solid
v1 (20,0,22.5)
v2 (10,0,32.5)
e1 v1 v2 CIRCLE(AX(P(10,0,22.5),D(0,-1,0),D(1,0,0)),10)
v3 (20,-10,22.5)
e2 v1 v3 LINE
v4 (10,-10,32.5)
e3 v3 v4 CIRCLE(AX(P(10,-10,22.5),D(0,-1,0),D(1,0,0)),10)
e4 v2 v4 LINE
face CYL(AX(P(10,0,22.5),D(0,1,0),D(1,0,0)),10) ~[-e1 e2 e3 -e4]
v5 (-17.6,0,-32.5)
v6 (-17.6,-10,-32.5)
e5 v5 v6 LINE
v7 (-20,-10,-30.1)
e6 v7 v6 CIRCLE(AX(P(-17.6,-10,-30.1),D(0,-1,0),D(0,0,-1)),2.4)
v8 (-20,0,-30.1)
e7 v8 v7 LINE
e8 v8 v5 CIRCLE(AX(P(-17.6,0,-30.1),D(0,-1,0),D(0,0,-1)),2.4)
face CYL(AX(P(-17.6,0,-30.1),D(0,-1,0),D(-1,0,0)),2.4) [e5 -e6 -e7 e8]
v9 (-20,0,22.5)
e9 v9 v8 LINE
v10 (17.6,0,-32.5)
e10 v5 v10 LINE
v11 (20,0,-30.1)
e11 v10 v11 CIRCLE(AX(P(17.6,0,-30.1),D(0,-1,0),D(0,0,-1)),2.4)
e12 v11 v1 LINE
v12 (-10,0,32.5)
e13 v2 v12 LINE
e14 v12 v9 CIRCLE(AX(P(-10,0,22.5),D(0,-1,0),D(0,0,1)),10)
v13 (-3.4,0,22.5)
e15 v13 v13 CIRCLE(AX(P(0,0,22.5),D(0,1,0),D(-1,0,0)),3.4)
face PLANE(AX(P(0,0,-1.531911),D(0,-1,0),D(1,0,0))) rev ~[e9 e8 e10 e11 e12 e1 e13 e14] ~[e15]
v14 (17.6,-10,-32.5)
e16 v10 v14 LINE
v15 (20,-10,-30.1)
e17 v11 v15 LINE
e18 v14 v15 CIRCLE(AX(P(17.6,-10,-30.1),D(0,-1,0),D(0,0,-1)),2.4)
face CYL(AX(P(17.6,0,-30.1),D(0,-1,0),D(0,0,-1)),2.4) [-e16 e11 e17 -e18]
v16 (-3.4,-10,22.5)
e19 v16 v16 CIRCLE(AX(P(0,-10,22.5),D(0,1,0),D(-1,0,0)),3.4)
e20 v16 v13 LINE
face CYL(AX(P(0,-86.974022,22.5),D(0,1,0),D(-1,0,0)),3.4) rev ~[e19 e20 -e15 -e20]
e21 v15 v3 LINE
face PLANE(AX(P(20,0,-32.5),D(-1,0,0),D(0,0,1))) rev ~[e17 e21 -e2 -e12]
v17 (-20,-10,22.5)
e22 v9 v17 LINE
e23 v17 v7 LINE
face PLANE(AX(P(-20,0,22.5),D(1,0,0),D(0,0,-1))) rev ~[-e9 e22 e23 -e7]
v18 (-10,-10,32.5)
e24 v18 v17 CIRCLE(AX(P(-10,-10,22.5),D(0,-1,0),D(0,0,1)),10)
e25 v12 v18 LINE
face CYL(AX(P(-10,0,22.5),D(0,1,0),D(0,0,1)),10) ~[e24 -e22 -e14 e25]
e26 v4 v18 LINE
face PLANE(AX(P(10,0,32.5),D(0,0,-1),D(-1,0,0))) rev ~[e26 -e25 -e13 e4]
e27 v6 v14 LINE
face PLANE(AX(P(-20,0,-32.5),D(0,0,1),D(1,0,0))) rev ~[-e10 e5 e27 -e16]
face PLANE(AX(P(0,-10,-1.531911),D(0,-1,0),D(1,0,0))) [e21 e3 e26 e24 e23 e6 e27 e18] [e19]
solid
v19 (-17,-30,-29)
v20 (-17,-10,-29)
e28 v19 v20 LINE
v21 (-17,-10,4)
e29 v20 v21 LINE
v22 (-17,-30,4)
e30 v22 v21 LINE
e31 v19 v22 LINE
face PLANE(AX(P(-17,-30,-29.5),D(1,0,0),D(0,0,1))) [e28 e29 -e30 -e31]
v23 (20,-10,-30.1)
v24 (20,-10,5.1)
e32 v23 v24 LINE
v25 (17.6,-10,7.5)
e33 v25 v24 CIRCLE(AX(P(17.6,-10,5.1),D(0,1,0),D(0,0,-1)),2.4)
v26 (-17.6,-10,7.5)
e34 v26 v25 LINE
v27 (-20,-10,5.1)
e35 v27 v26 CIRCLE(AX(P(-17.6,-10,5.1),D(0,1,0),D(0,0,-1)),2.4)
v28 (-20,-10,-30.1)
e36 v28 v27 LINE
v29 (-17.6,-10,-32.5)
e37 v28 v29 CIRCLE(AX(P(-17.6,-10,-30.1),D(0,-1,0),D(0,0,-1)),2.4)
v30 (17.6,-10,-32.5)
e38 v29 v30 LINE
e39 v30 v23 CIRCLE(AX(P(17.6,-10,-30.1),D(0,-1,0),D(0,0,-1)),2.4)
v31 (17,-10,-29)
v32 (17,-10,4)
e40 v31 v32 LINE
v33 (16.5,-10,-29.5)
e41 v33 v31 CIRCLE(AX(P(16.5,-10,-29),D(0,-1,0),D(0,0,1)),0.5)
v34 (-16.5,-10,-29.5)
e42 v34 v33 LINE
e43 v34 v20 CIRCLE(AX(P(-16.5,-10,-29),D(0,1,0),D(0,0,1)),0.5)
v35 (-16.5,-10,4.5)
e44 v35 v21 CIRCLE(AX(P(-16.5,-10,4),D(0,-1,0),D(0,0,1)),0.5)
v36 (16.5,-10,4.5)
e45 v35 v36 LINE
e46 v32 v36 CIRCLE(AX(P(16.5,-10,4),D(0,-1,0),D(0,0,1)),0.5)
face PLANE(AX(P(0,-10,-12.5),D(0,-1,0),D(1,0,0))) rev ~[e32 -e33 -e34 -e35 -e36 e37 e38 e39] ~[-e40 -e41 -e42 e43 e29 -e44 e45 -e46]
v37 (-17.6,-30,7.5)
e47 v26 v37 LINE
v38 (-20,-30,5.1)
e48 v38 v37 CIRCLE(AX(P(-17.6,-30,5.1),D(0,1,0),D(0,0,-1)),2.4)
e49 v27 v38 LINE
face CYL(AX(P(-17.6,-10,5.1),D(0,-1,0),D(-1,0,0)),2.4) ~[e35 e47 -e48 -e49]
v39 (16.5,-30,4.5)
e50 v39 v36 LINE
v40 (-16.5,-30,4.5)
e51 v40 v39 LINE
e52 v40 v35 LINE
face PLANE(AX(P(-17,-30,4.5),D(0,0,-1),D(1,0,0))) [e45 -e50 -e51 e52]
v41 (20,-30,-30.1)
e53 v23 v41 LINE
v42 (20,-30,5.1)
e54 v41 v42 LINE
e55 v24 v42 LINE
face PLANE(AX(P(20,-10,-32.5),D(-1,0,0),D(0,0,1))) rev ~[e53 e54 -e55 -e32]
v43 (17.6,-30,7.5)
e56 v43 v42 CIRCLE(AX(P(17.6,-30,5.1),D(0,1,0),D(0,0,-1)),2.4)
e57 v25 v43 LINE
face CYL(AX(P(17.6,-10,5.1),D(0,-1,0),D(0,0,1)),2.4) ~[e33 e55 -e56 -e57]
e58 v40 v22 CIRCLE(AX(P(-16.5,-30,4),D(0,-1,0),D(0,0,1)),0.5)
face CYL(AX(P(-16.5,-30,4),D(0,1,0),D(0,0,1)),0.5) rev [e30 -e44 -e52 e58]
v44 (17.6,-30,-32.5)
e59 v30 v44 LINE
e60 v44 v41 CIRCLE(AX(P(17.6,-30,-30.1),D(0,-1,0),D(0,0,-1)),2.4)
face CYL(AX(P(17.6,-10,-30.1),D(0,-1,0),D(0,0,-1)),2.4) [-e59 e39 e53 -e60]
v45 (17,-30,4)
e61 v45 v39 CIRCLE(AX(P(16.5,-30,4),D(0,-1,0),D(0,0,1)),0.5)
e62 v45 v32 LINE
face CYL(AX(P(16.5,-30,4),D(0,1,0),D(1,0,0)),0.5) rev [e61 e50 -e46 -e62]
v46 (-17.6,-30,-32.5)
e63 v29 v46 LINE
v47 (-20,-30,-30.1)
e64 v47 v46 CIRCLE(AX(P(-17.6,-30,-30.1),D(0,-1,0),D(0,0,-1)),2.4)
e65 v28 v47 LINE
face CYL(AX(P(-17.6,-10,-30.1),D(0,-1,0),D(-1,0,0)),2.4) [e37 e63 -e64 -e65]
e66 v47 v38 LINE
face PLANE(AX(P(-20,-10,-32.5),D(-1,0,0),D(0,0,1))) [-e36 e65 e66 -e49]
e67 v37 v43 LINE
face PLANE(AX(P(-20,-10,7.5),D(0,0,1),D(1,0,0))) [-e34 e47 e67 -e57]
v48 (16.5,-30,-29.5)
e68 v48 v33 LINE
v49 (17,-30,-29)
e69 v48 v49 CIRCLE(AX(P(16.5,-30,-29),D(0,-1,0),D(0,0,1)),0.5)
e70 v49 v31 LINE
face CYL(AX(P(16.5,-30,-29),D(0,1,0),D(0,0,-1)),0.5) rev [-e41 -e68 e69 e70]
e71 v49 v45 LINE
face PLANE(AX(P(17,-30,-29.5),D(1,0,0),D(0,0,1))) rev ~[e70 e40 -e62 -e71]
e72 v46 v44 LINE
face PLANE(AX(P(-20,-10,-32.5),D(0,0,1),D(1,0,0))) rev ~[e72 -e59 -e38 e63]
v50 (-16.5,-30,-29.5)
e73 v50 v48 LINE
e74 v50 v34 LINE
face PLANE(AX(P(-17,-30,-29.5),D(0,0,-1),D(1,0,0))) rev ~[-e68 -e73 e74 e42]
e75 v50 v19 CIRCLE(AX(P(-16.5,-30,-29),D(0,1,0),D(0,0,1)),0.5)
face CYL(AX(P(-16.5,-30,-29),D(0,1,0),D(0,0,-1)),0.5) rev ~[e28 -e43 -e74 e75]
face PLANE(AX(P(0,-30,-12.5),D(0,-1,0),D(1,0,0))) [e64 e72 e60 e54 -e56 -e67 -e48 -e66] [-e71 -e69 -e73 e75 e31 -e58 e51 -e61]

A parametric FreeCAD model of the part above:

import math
import FreeCAD as App
import Part
import Sketcher

V = App.Vector


def edges_at(feature, points):
    """Names of the edges that pass closest to the given points."""
    edges = feature.Shape.Edges
    near = lambda p: min(range(len(edges)), key=lambda i: edges[i].distToShape(Part.Vertex(*p))[0])
    return sorted({f"Edge{near(p) + 1}" for p in points})


def add_polygon(sketch, points):
    """Adds a closed chain of lines whose ends are joined by coincident constraints."""
    first, n = sketch.GeometryCount, len(points)
    for a, b in zip(points, points[1:] + points[:1]):
        sketch.addGeometry(Part.LineSegment(App.Vector(*a, 0), App.Vector(*b, 0)), False)
    for i in range(n):
        sketch.addConstraint(Sketcher.Constraint("Coincident", first + i, 2, first + (i + 1) % n, 1))

doc = App.newDocument("Part")
body = doc.addObject("PartDesign::Body", "Body")

# Sketch on XZ plane
sketch1 = body.newObject("Sketcher::SketchObject", "Sketch")
sketch1.AttachmentSupport = (doc.getObject("XZ_Plane"), [""])
sketch1.MapMode = "FlatFace"
sketch1.addGeometry([
    Part.LineSegment(V(10, 32.5, 0), V(-10, 32.5, 0)),  # 0
    Part.ArcOfCircle(Part.Circle(V(-10, 22.5, 0), V(0, 0, 1), 10), math.radians(90), math.radians(180)),  # 1
    Part.LineSegment(V(-20, 22.5, 0), V(-20, -32.5, 0)),  # 2
    Part.LineSegment(V(-20, -32.5, 0), V(20, -32.5, 0)),  # 3
    Part.LineSegment(V(20, -32.5, 0), V(20, 22.5, 0)),  # 4
    Part.ArcOfCircle(Part.Circle(V(10, 22.5, 0), V(0, 0, 1), 10), math.radians(0), math.radians(90)),  # 5
], False)
sketch1.addConstraint([
    Sketcher.Constraint("Tangent", 0, 2, 1, 1),
    Sketcher.Constraint("Tangent", 1, 2, 2, 1),
    Sketcher.Constraint("Coincident", 2, 2, 3, 1),
    Sketcher.Constraint("Coincident", 3, 2, 4, 1),
    Sketcher.Constraint("Tangent", 4, 2, 5, 1),
    Sketcher.Constraint("Tangent", 5, 2, 0, 1),
    Sketcher.Constraint("Horizontal", 0),
    Sketcher.Constraint("Vertical", 2),
    Sketcher.Constraint("Horizontal", 3),
    Sketcher.Constraint("Vertical", 4),
    Sketcher.Constraint("Equal", 1, 5),
    Sketcher.Constraint("Radius", 1, 10.0),
    Sketcher.Constraint("DistanceX", 0, 2, 0, 1, 20.0),
    Sketcher.Constraint("DistanceY", 2, 2, 2, 1, 55.0),
    Sketcher.Constraint("DistanceX", 1, 3, -1, 1, 10.0),
    Sketcher.Constraint("DistanceY", -1, 1, 1, 3, 22.5),
])
pad1 = body.newObject("PartDesign::Pad", "Pad")
pad1.Profile = sketch1
pad1.Length = 10
doc.recompute()

fillet = body.newObject("PartDesign::Fillet", "Fillet")
fillet.Base = (pad1, edges_at(pad1, [(-20, -5, -32.5), (20, -5, -32.5)]))
fillet.Radius = 2.4

# Sketch on XZ plane
sketch2 = body.newObject("Sketcher::SketchObject", "Sketch001")
sketch2.AttachmentSupport = (doc.getObject("XZ_Plane"), [""])
sketch2.MapMode = "FlatFace"
sketch2.AttachmentOffset = App.Placement(V(0, 0, 10), App.Rotation())
sketch2.addGeometry(Part.Circle(V(0, 22.5, 0), V(0, 0, 1), 3.4), False)
sketch2.addConstraint([
    Sketcher.Constraint("PointOnObject", 0, 3, -2),
    Sketcher.Constraint("Diameter", 0, 6.8),
    Sketcher.Constraint("DistanceY", -1, 1, 0, 3, 22.5),
])
doc.recompute()
hole = body.newObject("PartDesign::Hole", "Hole")
hole.Profile = sketch2
hole.ThreadType = "None"
hole.Diameter = 6.8
hole.DepthType = "ThroughAll"
body2 = doc.addObject("PartDesign::Body", "Body001")

# Sketch on XZ plane
sketch3 = body2.newObject("Sketcher::SketchObject", "Sketch002")
sketch3.AttachmentSupport = (doc.getObject("XZ_Plane001"), [""])
sketch3.MapMode = "FlatFace"
sketch3.AttachmentOffset = App.Placement(V(0, 0, 10), App.Rotation())
add_polygon(sketch3, [(-20, 7.5), (-20, -32.5), (20, -32.5), (20, 7.5)])  # lines 0-3
sketch3.addConstraint([
    Sketcher.Constraint("Vertical", 0),
    Sketcher.Constraint("Horizontal", 1),
    Sketcher.Constraint("Vertical", 2),
    Sketcher.Constraint("Horizontal", 3),
    Sketcher.Constraint("Equal", 3, 0),
    Sketcher.Constraint("DistanceX", 1, 1, 1, 2, 40.0),
    Sketcher.Constraint("DistanceX", 0, 2, -1, 1, 20.0),
    Sketcher.Constraint("DistanceY", 0, 2, -1, 1, 32.5),
])
pad2 = body2.newObject("PartDesign::Pad", "Pad001")
pad2.Profile = sketch3
pad2.Length = 20

# Sketch on XZ plane
sketch4 = body2.newObject("Sketcher::SketchObject", "Sketch003")
sketch4.AttachmentSupport = (doc.getObject("XZ_Plane001"), [""])
sketch4.MapMode = "FlatFace"
sketch4.AttachmentOffset = App.Placement(V(0, 0, 30), App.Rotation())
add_polygon(sketch4, [(-17, 4.5), (-17, -29.5), (17, -29.5), (17, 4.5)])  # lines 0-3
sketch4.addConstraint([
    Sketcher.Constraint("Vertical", 0),
    Sketcher.Constraint("Horizontal", 1),
    Sketcher.Constraint("Vertical", 2),
    Sketcher.Constraint("Horizontal", 3),
    Sketcher.Constraint("Equal", 3, 0),
    Sketcher.Constraint("DistanceX", 1, 1, 1, 2, 34.0),
    Sketcher.Constraint("DistanceX", 0, 2, -1, 1, 17.0),
    Sketcher.Constraint("DistanceY", 0, 2, -1, 1, 29.5),
])
pocket1 = body2.newObject("PartDesign::Pocket", "Pocket")
pocket1.Profile = sketch4
pocket1.Type = "ThroughAll"
doc.recompute()

fillet2 = body2.newObject("PartDesign::Fillet", "Fillet001")
fillet2.Base = (pocket1, edges_at(pocket1, [
    (-20, -20, 7.5),
    (20, -20, 7.5),
    (-20, -20, -32.5),
    (20, -20, -32.5),
]))
fillet2.Radius = 2.4
doc.recompute()

fillet3 = body2.newObject("PartDesign::Fillet", "Fillet002")
fillet3.Base = (fillet2, edges_at(fillet2, [
    (-17, -20, -29.5),
    (-17, -20, 4.5),
    (17, -20, 4.5),
    (17, -20, -29.5),
]))
fillet3.Radius = 0.5

doc.recompute()
